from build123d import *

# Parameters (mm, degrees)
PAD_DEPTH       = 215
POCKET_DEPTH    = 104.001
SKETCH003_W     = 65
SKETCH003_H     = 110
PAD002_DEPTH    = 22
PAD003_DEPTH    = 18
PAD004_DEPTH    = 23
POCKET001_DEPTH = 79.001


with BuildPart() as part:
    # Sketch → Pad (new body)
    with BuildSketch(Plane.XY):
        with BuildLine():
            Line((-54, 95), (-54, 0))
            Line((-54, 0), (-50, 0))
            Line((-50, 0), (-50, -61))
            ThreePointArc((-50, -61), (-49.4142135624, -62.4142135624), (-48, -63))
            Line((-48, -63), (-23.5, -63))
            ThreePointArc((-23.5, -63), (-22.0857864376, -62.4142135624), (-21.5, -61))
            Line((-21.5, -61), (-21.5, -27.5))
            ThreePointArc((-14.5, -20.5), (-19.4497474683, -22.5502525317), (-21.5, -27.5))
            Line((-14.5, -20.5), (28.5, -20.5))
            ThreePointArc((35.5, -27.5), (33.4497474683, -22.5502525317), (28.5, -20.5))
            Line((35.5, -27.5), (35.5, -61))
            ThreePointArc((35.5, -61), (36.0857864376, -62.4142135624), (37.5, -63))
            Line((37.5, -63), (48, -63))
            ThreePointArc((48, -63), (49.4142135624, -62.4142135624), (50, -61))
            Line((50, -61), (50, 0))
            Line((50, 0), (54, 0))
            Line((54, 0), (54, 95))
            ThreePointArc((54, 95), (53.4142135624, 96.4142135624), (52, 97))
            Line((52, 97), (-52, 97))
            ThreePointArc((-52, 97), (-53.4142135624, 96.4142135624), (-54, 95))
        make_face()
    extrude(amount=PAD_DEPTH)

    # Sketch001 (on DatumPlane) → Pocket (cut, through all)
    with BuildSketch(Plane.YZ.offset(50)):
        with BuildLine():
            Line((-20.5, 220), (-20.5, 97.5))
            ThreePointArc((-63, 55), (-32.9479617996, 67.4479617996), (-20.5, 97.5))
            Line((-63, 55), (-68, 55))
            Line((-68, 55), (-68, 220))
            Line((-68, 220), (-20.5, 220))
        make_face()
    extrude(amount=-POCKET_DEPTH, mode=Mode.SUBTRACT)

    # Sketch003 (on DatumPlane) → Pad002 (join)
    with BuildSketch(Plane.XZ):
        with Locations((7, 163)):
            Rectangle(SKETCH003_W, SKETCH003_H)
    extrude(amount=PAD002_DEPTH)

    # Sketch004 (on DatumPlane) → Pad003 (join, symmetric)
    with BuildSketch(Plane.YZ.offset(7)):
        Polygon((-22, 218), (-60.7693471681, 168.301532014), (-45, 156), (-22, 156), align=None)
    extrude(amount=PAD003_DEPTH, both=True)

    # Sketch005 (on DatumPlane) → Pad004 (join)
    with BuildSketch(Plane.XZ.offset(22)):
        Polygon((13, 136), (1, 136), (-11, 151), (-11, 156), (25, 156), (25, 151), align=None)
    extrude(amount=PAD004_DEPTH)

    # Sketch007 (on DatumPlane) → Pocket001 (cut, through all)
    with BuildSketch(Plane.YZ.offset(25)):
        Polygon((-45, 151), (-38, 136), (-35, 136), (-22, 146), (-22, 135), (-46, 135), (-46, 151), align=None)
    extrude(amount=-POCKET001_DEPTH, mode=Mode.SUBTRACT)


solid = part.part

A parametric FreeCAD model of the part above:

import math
import FreeCAD as App
import Part
import Sketcher


def add_polygon(sketch, points):
    """Adds a closed chain of lines whose ends are joined by coincident constraints."""
    first, n = sketch.GeometryCount, len(points)
    for a, b in zip(points, points[1:] + points[:1]):
        sketch.addGeometry(Part.LineSegment(App.Vector(*a, 0), App.Vector(*b, 0)), False)
    for i in range(n):
        sketch.addConstraint(Sketcher.Constraint("Coincident", first + i, 2, first + (i + 1) % n, 1))

doc = App.newDocument("Part")
body = doc.addObject("PartDesign::Body", "Body")

# Sketch on XY plane
sketch1 = body.newObject("Sketcher::SketchObject", "Sketch")
sketch1.AttachmentSupport = (doc.getObject("XY_Plane"), [""])
sketch1.MapMode = "FlatFace"
sketch1.addGeometry([
    Part.LineSegment(App.Vector(-54, 95, 0), App.Vector(-54, 0, 0)),  # 0
    Part.LineSegment(App.Vector(-54, 0, 0), App.Vector(-50, 0, 0)),  # 1
    Part.LineSegment(App.Vector(-50, 0, 0), App.Vector(-50, -61, 0)),  # 2
    Part.ArcOfCircle(Part.Circle(App.Vector(-48, -61, 0), App.Vector(0, 0, 1), 2), math.radians(180), math.radians(270)),  # 3
    Part.LineSegment(App.Vector(-48, -63, 0), App.Vector(-23.5, -63, 0)),  # 4
    Part.ArcOfCircle(Part.Circle(App.Vector(-23.5, -61, 0), App.Vector(0, 0, 1), 2), math.radians(-90), math.radians(0)),  # 5
    Part.LineSegment(App.Vector(-21.5, -61, 0), App.Vector(-21.5, -27.5, 0)),  # 6
    Part.ArcOfCircle(Part.Circle(App.Vector(-14.5, -27.5, 0), App.Vector(0, 0, 1), 7), math.radians(90), math.radians(180)),  # 7
    Part.LineSegment(App.Vector(-14.5, -20.5, 0), App.Vector(28.5, -20.5, 0)),  # 8
    Part.ArcOfCircle(Part.Circle(App.Vector(28.5, -27.5, 0), App.Vector(0, 0, 1), 7), math.radians(0), math.radians(90)),  # 9
    Part.LineSegment(App.Vector(35.5, -27.5, 0), App.Vector(35.5, -61, 0)),  # 10
    Part.ArcOfCircle(Part.Circle(App.Vector(37.5, -61, 0), App.Vector(0, 0, 1), 2), math.radians(180), math.radians(270)),  # 11
    Part.LineSegment(App.Vector(37.5, -63, 0), App.Vector(48, -63, 0)),  # 12
    Part.ArcOfCircle(Part.Circle(App.Vector(48, -61, 0), App.Vector(0, 0, 1), 2), math.radians(-90), math.radians(0)),  # 13
    Part.LineSegment(App.Vector(50, -61, 0), App.Vector(50, 0, 0)),  # 14
    Part.LineSegment(App.Vector(50, 0, 0), App.Vector(54, 0, 0)),  # 15
    Part.LineSegment(App.Vector(54, 0, 0), App.Vector(54, 95, 0)),  # 16
    Part.ArcOfCircle(Part.Circle(App.Vector(52, 95, 0), App.Vector(0, 0, 1), 2), math.radians(0), math.radians(90)),  # 17
    Part.LineSegment(App.Vector(52, 97, 0), App.Vector(-52, 97, 0)),  # 18
    Part.ArcOfCircle(Part.Circle(App.Vector(-52, 95, 0), App.Vector(0, 0, 1), 2), math.radians(90), math.radians(180)),  # 19
], False)
sketch1.addConstraint([
    Sketcher.Constraint("Coincident", 0, 2, 1, 1),
    Sketcher.Constraint("Coincident", 1, 2, 2, 1),
    Sketcher.Constraint("Tangent", 2, 2, 3, 1),
    Sketcher.Constraint("Tangent", 3, 2, 4, 1),
    Sketcher.Constraint("Tangent", 4, 2, 5, 1),
    Sketcher.Constraint("Tangent", 5, 2, 6, 1),
    Sketcher.Constraint("Tangent", 6, 2, 7, 2),
    Sketcher.Constraint("Tangent", 7, 1, 8, 1),
    Sketcher.Constraint("Tangent", 8, 2, 9, 2),
    Sketcher.Constraint("Tangent", 9, 1, 10, 1),
    Sketcher.Constraint("Tangent", 10, 2, 11, 1),
    Sketcher.Constraint("Tangent", 11, 2, 12, 1),
    Sketcher.Constraint("Tangent", 12, 2, 13, 1),
    Sketcher.Constraint("Tangent", 13, 2, 14, 1),
    Sketcher.Constraint("Coincident", 14, 2, 15, 1),
    Sketcher.Constraint("Coincident", 15, 2, 16, 1),
    Sketcher.Constraint("Tangent", 16, 2, 17, 1),
    Sketcher.Constraint("Tangent", 17, 2, 18, 1),
    Sketcher.Constraint("Tangent", 18, 2, 19, 1),
    Sketcher.Constraint("Tangent", 19, 2, 0, 1),
    Sketcher.Constraint("Vertical", 0),
    Sketcher.Constraint("Horizontal", 1),
    Sketcher.Constraint("Vertical", 2),
    Sketcher.Constraint("Horizontal", 4),
    Sketcher.Constraint("Vertical", 6),
    Sketcher.Constraint("Horizontal", 8),
    Sketcher.Constraint("Vertical", 10),
    Sketcher.Constraint("Horizontal", 12),
    Sketcher.Constraint("Vertical", 14),
    Sketcher.Constraint("Horizontal", 15),
    Sketcher.Constraint("Vertical", 16),
    Sketcher.Constraint("Horizontal", 18),
    Sketcher.Constraint("Equal", 3, 5),
    Sketcher.Constraint("Equal", 7, 9),
    Sketcher.Constraint("Equal", 5, 11),
    Sketcher.Constraint("Equal", 11, 13),
    Sketcher.Constraint("Equal", 13, 17),
    Sketcher.Constraint("Equal", 17, 19),
    Sketcher.Constraint("Symmetric", 1, 2, 14, 2, -1, 1),
    Sketcher.Constraint("Symmetric", 0, 2, 15, 2, -2),
    Sketcher.Constraint("Horizontal", 5, 3, 11, 3),
    Sketcher.Constraint("Radius", 3, 2.0),
    Sketcher.Constraint("Radius", 7, 7.0),
    Sketcher.Constraint("DistanceX", 1, 1, 1, 2, 4.0),
    Sketcher.Constraint("DistanceX", 8, 1, 8, 2, 43.0),
    Sketcher.Constraint("DistanceX", 18, 2, 18, 1, 104.0),
    Sketcher.Constraint("DistanceY", 0, 2, 0, 1, 95.0),
    Sketcher.Constraint("DistanceY", 2, 2, 2, 1, 61.0),
    Sketcher.Constraint("DistanceX", 4, 1, 4, 2, 24.5),
    Sketcher.Constraint("DistanceY", 6, 1, 6, 2, 33.5),
])
pad1 = body.newObject("PartDesign::Pad", "Pad")
pad1.Profile = sketch1
pad1.Length = 215

# Sketch on YZ plane
sketch2 = body.newObject("Sketcher::SketchObject", "Sketch001")
sketch2.AttachmentSupport = (doc.getObject("YZ_Plane"), [""])
sketch2.MapMode = "FlatFace"
sketch2.AttachmentOffset = App.Placement(App.Vector(0, 0, 50), App.Rotation())
sketch2.addGeometry([
    Part.LineSegment(App.Vector(-20.5, 97.5, 0), App.Vector(-20.5, 220, 0)),  # 0
    Part.LineSegment(App.Vector(-20.5, 220, 0), App.Vector(-68, 220, 0)),  # 1
    Part.LineSegment(App.Vector(-68, 220, 0), App.Vector(-68, 55, 0)),  # 2
    Part.LineSegment(App.Vector(-68, 55, 0), App.Vector(-63, 55, 0)),  # 3
    Part.ArcOfCircle(Part.Circle(App.Vector(-63, 97.5, 0), App.Vector(0, 0, 1), 42.5), math.radians(-90), math.radians(0)),  # 4
], False)
sketch2.addConstraint([
    Sketcher.Constraint("Coincident", 0, 2, 1, 1),
    Sketcher.Constraint("Coincident", 1, 2, 2, 1),
    Sketcher.Constraint("Coincident", 2, 2, 3, 1),
    Sketcher.Constraint("Tangent", 3, 2, 4, 1),
    Sketcher.Constraint("Tangent", 4, 2, 0, 1),
    Sketcher.Constraint("Vertical", 0),
    Sketcher.Constraint("Horizontal", 1),
    Sketcher.Constraint("Vertical", 2),
    Sketcher.Constraint("Horizontal", 3),
    Sketcher.Constraint("Radius", 4, 42.5),
    Sketcher.Constraint("DistanceX", 3, 1, 3, 2, 5.0),
    Sketcher.Constraint("DistanceY", 2, 2, 2, 1, 165.0),
    Sketcher.Constraint("DistanceX", 4, 3, -1, 1, 63.0),
    Sketcher.Constraint("DistanceY", -1, 1, 0, 2, 220.0),
])
pocket1 = body.newObject("PartDesign::Pocket", "Pocket")
pocket1.Profile = sketch2
pocket1.Type = "ThroughAll"

# Sketch on XZ plane
sketch3 = body.newObject("Sketcher::SketchObject", "Sketch002")
sketch3.AttachmentSupport = (doc.getObject("XZ_Plane"), [""])
sketch3.MapMode = "FlatFace"
add_polygon(sketch3, [(-25.5, 218), (-25.5, 108), (39.5, 108), (39.5, 218)])  # lines 0-3
sketch3.addConstraint([
    Sketcher.Constraint("Vertical", 0),
    Sketcher.Constraint("Horizontal", 1),
    Sketcher.Constraint("Vertical", 2),
    Sketcher.Constraint("Horizontal", 3),
    Sketcher.Constraint("DistanceX", 1, 1, 1, 2, 65.0),
    Sketcher.Constraint("DistanceY", 0, 2, 0, 1, 110.0),
    Sketcher.Constraint("DistanceY", -1, 1, 0, 2, 108.0),
    Sketcher.Constraint("DistanceX", 0, 2, -1, 1, 25.5),
])
pad2 = body.newObject("PartDesign::Pad", "Pad001")
pad2.Profile = sketch3
pad2.Length = 22

# Sketch on YZ plane
sketch4 = body.newObject("Sketcher::SketchObject", "Sketch003")
sketch4.AttachmentSupport = (doc.getObject("YZ_Plane"), [""])
sketch4.MapMode = "FlatFace"
sketch4.AttachmentOffset = App.Placement(App.Vector(0, 0, 7), App.Rotation())
add_polygon(sketch4, [(-22, 218), (-60.769347, 168.301532), (-45, 156), (-22, 156)])  # lines 0-3
sketch4.addConstraint([
    Sketcher.Constraint("Horizontal", 2),
    Sketcher.Constraint("Vertical", 3),
    Sketcher.Constraint("Perpendicular", 0, 1),
    Sketcher.Constraint("DistanceX", 2, 1, 2, 2, 23.0),
    Sketcher.Constraint("DistanceY", 3, 1, 3, 2, 62.0),
    Sketcher.Constraint("Distance", 1, 20.0),
    Sketcher.Constraint("DistanceX", 1, 2, -1, 1, 45.0),
    Sketcher.Constraint("DistanceY", -1, 1, 1, 2, 156.0),
])
pad3 = body.newObject("PartDesign::Pad", "Pad002")
pad3.Profile = sketch4
pad3.Length = 36
pad3.Midplane = True

# Sketch on XZ plane
sketch5 = body.newObject("Sketcher::SketchObject", "Sketch004")
sketch5.AttachmentSupport = (doc.getObject("XZ_Plane"), [""])
sketch5.MapMode = "FlatFace"
sketch5.AttachmentOffset = App.Placement(App.Vector(0, 0, 22), App.Rotation())
add_polygon(sketch5, [(1, 136), (13, 136), (25, 151), (25, 156), (-11, 156), (-11, 151)])  # lines 0-5
sketch5.addConstraint([
    Sketcher.Constraint("Horizontal", 0),
    Sketcher.Constraint("Vertical", 2),
    Sketcher.Constraint("Horizontal", 3),
    Sketcher.Constraint("Vertical", 4),
    Sketcher.Constraint("Horizontal", 1, 2, 4, 2),
    Sketcher.Constraint("Equal", 1, 5),
    Sketcher.Constraint("DistanceX", 0, 1, 0, 2, 12.0),
    Sketcher.Constraint("DistanceX", 3, 2, 3, 1, 36.0),
    Sketcher.Constraint("DistanceY", 2, 1, 2, 2, 5.0),
    Sketcher.Constraint("DistanceX", -1, 1, 0, 2, 13.0),
    Sketcher.Constraint("DistanceY", -1, 1, 0, 2, 136.0),
    Sketcher.Constraint("DistanceY", -1, 1, 1, 2, 151.0),
])
pad4 = body.newObject("PartDesign::Pad", "Pad003")
pad4.Profile = sketch5
pad4.Length = 23

# Sketch on YZ plane
sketch6 = body.newObject("Sketcher::SketchObject", "Sketch005")
sketch6.AttachmentSupport = (doc.getObject("YZ_Plane"), [""])
sketch6.MapMode = "FlatFace"
sketch6.AttachmentOffset = App.Placement(App.Vector(0, 0, 25), App.Rotation())
add_polygon(sketch6, [(-38, 136), (-45, 151), (-46, 151), (-46, 135), (-22, 135), (-22, 146), (-35, 136)])  # lines 0-6
sketch6.addConstraint([
    Sketcher.Constraint("Horizontal", 1),
    Sketcher.Constraint("Vertical", 2),
    Sketcher.Constraint("Horizontal", 3),
    Sketcher.Constraint("Vertical", 4),
    Sketcher.Constraint("Horizontal", 6),
    Sketcher.Constraint("DistanceX", 1, 2, 1, 1, 1.0),
    Sketcher.Constraint("DistanceX", 3, 1, 3, 2, 24.0),
    Sketcher.Constraint("DistanceX", 6, 2, 6, 1, 3.0),
    Sketcher.Constraint("DistanceY", 2, 2, 2, 1, 16.0),
    Sketcher.Constraint("DistanceY", 4, 1, 4, 2, 11.0),
    Sketcher.Constraint("DistanceX", 0, 2, -1, 1, 45.0),
    Sketcher.Constraint("DistanceY", -1, 1, 0, 2, 151.0),
    Sketcher.Constraint("DistanceX", 5, 2, -1, 1, 35.0),
    Sketcher.Constraint("DistanceY", -1, 1, 5, 2, 136.0),
])
pocket2 = body.newObject("PartDesign::Pocket", "Pocket001")
pocket2.Profile = sketch6
pocket2.Type = "ThroughAll"

doc.recompute()
